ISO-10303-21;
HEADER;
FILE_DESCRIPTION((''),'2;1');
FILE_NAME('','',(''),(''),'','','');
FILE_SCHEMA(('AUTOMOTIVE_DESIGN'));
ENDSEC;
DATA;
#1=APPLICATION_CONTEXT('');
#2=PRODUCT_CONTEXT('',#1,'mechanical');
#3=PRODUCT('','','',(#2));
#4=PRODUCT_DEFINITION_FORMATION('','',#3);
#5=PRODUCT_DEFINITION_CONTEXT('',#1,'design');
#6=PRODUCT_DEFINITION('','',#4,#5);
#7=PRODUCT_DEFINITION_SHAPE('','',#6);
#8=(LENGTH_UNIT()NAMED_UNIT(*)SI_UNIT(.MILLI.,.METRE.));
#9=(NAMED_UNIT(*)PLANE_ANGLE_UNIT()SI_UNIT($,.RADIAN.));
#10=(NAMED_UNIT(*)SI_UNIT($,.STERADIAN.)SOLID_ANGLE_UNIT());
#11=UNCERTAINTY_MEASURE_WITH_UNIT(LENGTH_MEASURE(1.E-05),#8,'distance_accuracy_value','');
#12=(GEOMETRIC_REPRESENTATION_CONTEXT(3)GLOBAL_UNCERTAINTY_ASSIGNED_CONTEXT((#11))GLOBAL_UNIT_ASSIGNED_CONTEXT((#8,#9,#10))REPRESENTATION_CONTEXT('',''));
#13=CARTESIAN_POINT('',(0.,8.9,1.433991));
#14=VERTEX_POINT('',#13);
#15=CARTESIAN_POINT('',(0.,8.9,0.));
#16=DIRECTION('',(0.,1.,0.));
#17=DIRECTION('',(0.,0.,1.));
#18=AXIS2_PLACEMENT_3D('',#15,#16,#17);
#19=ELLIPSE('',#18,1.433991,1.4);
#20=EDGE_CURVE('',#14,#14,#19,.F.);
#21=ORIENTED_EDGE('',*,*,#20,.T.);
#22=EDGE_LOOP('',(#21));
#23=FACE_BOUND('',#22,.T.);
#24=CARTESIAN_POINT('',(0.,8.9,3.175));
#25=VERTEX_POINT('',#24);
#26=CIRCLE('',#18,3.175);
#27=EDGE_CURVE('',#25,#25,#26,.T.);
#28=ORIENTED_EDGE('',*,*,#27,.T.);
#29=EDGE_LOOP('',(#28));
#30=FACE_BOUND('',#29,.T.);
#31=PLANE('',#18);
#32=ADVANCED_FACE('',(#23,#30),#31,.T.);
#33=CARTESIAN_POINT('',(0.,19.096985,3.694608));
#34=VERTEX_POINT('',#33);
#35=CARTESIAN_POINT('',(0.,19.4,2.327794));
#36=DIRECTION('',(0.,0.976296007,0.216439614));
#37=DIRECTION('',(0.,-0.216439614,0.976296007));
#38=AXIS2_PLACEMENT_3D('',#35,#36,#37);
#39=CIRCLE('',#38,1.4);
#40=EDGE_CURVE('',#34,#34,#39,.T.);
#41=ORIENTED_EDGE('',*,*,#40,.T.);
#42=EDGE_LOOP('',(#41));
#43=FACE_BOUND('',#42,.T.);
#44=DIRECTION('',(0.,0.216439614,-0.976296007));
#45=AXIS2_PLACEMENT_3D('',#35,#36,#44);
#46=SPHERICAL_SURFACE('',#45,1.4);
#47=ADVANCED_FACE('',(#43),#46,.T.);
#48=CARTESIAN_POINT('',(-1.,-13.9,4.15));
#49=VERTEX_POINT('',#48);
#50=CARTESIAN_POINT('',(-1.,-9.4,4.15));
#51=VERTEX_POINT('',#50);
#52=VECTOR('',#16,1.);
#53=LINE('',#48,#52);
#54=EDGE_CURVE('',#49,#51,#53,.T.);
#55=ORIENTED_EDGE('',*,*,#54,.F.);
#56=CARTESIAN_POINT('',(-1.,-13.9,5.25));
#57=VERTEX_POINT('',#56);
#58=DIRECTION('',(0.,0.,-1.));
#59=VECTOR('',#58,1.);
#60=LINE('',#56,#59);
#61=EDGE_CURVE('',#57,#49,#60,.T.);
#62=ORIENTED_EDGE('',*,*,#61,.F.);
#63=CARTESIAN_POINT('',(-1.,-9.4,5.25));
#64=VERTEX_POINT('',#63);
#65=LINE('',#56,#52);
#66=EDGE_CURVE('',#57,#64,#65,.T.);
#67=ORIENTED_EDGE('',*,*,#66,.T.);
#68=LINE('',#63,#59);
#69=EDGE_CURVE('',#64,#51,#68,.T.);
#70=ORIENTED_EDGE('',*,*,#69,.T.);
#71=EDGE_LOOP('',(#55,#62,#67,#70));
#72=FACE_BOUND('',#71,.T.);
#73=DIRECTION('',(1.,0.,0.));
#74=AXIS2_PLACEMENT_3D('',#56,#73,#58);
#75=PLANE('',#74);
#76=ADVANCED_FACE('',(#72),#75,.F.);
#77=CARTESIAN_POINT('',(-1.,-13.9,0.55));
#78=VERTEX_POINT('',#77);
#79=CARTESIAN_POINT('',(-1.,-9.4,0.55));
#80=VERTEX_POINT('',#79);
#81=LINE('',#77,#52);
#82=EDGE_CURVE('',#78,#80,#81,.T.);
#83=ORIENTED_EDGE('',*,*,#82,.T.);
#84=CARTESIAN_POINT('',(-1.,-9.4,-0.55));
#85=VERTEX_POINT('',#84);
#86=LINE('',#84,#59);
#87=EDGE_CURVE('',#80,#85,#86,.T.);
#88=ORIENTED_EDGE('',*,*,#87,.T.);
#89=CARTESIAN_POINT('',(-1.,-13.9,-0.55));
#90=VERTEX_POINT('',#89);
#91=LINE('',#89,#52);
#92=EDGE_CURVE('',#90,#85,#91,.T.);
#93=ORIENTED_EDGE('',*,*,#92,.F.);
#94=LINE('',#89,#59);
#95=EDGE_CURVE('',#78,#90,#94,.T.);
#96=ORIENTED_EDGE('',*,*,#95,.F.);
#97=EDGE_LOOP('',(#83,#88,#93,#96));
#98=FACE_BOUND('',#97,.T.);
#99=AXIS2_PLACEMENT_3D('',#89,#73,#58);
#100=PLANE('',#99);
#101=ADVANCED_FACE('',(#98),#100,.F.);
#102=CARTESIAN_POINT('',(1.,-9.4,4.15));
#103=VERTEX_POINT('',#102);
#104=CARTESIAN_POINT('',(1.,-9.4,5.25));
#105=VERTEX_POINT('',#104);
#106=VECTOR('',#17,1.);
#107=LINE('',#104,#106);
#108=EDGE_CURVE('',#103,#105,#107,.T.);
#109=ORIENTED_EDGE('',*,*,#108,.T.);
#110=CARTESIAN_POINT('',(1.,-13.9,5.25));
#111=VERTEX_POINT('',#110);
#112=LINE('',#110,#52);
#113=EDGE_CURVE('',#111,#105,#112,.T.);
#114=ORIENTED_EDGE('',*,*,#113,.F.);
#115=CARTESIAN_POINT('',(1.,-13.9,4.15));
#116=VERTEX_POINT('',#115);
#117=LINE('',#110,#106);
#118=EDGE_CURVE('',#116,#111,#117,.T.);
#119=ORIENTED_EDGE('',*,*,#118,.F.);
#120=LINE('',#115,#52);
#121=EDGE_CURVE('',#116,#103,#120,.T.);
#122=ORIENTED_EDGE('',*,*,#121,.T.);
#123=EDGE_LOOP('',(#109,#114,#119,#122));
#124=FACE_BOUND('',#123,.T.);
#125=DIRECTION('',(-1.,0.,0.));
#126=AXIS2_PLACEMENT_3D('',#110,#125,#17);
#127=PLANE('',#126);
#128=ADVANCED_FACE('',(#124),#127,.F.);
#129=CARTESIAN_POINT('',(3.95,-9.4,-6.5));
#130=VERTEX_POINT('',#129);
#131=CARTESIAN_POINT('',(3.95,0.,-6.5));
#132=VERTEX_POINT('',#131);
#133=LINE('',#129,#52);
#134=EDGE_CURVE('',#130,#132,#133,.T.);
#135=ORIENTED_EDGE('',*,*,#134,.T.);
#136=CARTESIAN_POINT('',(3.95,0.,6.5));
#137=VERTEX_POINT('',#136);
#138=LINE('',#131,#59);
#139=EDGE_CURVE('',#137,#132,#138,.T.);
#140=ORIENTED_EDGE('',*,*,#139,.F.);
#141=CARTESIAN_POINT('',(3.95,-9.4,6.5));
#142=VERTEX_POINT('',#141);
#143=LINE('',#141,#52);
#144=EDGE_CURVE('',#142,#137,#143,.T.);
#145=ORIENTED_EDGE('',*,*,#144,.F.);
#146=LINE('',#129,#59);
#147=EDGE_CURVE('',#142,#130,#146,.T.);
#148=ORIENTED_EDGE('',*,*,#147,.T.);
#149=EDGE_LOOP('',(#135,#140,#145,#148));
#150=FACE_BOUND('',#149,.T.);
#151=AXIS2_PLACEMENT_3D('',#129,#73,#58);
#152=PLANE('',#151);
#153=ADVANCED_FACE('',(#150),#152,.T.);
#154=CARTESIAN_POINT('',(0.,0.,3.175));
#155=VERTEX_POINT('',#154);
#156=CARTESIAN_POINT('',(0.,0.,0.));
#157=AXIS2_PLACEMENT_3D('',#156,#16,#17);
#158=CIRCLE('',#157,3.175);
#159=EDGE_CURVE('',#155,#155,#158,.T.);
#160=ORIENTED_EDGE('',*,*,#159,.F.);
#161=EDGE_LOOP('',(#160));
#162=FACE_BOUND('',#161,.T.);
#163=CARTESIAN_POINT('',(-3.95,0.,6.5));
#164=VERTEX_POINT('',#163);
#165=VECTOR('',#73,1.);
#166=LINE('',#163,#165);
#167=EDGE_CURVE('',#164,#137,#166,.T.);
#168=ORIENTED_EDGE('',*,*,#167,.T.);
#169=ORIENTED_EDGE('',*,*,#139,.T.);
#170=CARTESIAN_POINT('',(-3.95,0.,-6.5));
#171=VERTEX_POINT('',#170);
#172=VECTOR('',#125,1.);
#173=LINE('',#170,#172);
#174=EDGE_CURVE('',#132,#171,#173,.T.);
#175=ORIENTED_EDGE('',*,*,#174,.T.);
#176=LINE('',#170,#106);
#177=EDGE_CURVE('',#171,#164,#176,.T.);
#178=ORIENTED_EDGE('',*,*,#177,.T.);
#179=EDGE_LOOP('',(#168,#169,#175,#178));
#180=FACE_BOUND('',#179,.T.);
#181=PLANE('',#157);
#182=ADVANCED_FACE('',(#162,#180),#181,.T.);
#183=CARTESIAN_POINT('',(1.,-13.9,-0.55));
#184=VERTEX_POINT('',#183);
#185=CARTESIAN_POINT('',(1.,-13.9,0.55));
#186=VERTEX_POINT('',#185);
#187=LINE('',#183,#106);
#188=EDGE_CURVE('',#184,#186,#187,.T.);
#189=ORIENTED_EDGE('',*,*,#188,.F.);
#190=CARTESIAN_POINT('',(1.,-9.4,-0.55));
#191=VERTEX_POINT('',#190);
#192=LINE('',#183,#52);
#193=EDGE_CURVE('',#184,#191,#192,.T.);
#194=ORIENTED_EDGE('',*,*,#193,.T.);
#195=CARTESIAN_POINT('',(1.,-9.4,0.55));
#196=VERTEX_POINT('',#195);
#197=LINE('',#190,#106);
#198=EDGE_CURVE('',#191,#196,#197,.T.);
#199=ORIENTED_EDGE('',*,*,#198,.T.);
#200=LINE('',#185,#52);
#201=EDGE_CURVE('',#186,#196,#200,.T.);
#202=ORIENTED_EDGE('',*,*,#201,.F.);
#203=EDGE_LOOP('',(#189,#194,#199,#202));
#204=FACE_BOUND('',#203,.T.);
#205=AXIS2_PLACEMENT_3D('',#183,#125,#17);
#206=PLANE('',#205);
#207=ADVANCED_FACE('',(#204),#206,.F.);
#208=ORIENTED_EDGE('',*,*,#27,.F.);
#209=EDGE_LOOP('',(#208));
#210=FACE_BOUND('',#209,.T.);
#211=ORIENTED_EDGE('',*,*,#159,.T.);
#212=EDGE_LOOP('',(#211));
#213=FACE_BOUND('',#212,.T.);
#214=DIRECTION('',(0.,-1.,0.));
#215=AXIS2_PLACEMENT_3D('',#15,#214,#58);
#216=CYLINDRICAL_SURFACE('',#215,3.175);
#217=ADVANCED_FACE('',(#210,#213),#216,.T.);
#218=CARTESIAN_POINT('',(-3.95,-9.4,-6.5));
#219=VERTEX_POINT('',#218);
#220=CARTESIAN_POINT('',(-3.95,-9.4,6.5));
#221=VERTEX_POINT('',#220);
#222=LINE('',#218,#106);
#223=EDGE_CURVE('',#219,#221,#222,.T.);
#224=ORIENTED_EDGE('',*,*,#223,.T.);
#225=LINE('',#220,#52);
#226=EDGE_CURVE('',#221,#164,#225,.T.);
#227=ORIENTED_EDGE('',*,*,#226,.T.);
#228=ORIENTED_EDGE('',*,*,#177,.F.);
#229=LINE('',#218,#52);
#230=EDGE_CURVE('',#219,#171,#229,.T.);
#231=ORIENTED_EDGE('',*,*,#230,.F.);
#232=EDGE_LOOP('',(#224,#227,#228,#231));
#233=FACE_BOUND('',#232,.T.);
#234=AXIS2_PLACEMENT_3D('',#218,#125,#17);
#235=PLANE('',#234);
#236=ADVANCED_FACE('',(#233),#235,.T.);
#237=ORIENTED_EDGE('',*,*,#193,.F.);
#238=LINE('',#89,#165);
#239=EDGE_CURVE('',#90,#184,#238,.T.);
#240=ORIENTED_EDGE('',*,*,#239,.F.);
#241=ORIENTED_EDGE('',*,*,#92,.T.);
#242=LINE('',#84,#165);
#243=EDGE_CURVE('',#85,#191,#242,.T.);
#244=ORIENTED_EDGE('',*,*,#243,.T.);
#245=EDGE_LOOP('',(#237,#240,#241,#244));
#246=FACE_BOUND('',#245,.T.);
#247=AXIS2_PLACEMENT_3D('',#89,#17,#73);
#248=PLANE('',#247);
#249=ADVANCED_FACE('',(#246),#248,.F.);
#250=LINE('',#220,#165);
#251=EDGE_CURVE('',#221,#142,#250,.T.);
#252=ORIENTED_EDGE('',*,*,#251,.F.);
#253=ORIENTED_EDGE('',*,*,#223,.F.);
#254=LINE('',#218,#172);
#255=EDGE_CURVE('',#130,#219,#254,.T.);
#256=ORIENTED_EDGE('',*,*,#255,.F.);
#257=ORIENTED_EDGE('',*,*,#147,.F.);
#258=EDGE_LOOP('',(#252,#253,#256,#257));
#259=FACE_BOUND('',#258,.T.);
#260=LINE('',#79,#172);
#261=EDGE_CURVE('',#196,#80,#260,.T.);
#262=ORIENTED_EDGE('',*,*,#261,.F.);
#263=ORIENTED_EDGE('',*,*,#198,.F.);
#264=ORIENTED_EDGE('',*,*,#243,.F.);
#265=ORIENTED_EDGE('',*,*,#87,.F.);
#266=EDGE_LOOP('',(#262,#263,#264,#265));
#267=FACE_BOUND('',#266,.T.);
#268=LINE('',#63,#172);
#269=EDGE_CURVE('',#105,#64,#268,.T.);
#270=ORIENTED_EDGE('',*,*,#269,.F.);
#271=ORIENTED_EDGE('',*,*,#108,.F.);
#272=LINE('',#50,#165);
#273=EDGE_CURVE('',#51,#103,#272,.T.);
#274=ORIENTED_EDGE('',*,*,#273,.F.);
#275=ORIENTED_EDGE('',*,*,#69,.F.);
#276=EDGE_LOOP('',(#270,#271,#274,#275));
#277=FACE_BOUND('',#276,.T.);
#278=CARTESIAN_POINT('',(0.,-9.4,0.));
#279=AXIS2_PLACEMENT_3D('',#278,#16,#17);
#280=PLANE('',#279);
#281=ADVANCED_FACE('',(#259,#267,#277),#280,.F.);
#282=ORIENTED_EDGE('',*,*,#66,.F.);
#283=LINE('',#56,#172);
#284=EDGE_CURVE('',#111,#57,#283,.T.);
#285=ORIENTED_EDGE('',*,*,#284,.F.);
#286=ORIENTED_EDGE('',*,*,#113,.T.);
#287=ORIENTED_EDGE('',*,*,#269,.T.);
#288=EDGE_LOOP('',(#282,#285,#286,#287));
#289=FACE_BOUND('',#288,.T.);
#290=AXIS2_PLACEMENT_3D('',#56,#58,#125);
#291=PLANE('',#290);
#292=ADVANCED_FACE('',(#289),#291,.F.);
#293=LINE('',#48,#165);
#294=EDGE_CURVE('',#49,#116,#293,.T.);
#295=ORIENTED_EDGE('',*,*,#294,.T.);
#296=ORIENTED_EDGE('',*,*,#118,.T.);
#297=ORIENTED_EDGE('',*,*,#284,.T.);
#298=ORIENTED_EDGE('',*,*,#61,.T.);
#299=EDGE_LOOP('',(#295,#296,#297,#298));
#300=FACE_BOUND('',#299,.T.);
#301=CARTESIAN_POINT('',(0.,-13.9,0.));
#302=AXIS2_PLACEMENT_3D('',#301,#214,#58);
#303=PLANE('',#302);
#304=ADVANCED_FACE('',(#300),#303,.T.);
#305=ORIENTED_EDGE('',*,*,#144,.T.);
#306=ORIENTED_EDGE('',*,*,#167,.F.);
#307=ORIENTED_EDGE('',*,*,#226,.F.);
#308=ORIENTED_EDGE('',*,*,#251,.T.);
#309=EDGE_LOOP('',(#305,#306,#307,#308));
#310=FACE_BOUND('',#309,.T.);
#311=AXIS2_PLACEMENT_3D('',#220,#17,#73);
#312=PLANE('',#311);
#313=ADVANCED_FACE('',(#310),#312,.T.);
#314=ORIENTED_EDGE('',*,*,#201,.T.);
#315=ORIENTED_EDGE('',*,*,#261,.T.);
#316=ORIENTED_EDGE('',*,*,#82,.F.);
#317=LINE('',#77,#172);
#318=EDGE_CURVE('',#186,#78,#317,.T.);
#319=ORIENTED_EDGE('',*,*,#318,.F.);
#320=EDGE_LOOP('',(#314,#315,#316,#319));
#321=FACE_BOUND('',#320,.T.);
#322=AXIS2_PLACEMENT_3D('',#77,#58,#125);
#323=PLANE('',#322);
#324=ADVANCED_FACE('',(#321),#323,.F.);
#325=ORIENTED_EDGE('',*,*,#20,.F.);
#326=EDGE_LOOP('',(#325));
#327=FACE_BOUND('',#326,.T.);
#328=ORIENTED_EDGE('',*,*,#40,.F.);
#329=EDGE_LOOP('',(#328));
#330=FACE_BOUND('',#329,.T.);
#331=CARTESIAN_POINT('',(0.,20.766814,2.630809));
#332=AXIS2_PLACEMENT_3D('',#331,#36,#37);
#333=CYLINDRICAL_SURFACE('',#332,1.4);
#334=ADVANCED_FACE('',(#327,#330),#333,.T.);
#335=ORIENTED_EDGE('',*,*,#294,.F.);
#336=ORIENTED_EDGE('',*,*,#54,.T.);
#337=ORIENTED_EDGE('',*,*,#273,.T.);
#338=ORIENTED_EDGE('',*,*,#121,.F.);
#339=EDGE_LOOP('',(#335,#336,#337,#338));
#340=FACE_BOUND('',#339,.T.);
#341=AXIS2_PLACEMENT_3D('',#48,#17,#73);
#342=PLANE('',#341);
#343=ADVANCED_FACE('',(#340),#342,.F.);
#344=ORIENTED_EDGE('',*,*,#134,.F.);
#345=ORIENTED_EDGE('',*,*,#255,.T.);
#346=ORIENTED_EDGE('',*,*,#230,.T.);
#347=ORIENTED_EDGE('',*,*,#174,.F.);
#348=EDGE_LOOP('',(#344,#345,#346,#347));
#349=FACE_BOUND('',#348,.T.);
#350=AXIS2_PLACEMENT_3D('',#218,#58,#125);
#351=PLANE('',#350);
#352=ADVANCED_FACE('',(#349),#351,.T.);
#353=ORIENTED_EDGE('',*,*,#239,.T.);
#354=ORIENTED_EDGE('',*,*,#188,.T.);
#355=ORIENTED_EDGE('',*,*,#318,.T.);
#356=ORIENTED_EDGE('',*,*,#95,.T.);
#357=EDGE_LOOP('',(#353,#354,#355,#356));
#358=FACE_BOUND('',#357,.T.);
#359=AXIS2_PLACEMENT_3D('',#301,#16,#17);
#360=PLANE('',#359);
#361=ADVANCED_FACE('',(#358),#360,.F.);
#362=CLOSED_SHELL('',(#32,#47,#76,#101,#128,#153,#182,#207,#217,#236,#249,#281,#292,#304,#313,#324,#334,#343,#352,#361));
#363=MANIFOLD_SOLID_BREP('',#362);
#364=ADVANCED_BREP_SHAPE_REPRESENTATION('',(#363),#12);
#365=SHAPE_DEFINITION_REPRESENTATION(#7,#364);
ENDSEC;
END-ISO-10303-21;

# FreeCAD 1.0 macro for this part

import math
import FreeCAD as App
import Part
import Sketcher

V = App.Vector
Q = App.Units.Quantity


def add_polygon(sketch, points):
    """Adds a closed chain of lines whose ends are joined by coincident constraints."""
    first, n = sketch.GeometryCount, len(points)
    for a, b in zip(points, points[1:] + points[:1]):
        sketch.addGeometry(Part.LineSegment(App.Vector(*a, 0), App.Vector(*b, 0)), False)
    for i in range(n):
        sketch.addConstraint(Sketcher.Constraint("Coincident", first + i, 2, first + (i + 1) % n, 1))

doc = App.newDocument("Part")
body = doc.addObject("PartDesign::Body", "Body")

# Sketch on XZ plane
sketch1 = body.newObject("Sketcher::SketchObject", "Sketch")
sketch1.AttachmentSupport = (doc.getObject("XZ_Plane"), [""])
sketch1.MapMode = "FlatFace"
add_polygon(sketch1, [(-4, -6), (-4, 6), (4, 6), (4, -6)])  # lines 0-3
sketch1.addConstraint([
    Sketcher.Constraint("Vertical", 0),
    Sketcher.Constraint("Horizontal", 1),
    Sketcher.Constraint("Vertical", 2),
    Sketcher.Constraint("Horizontal", 3),
    Sketcher.Constraint("Symmetric", 0, 2, 2, 2, -1, 1),
    Sketcher.Constraint("DistanceY", 0, 1, 0, 2, Q("13 mm")),
    Sketcher.Constraint("DistanceX", 1, 1, 1, 2, Q("7.9 mm")),
])
pad1 = body.newObject("PartDesign::Pad", "Pad")
pad1.Profile = sketch1
pad1.Length = 9.4

# Sketch on XZ plane
sketch2 = body.newObject("Sketcher::SketchObject", "Sketch001")
sketch2.AttachmentSupport = (doc.getObject("XZ_Plane"), [""])
sketch2.MapMode = "FlatFace"
sketch2.AttachmentOffset = App.Placement(V(0, 0, 9.4), App.Rotation())
add_polygon(sketch2, [(-1, 5.2), (-1, 4.2), (1, 4.2), (1, 5.2)])  # lines 0-3
add_polygon(sketch2, [(-1, 0.6), (-1, -0.6), (1, -0.6), (1, 0.6)])  # lines 4-7
sketch2.addConstraint([
    Sketcher.Constraint("Vertical", 0),
    Sketcher.Constraint("Horizontal", 1),
    Sketcher.Constraint("Vertical", 2),
    Sketcher.Constraint("Horizontal", 3),
    Sketcher.Constraint("Vertical", 4),
    Sketcher.Constraint("Horizontal", 5),
    Sketcher.Constraint("Vertical", 6),
    Sketcher.Constraint("Horizontal", 7),
    Sketcher.Constraint("Symmetric", 4, 2, 6, 2, -1, 1),
    Sketcher.Constraint("Vertical", 3, 2, 4, 2),
    Sketcher.Constraint("Vertical", 2, 2, 5, 2),
    Sketcher.Constraint("Equal", 2, 4),
    Sketcher.Constraint("DistanceX", 1, 1, 1, 2, Q("2 mm")),
    Sketcher.Constraint("DistanceY", 0, 2, 0, 1, Q("1.1 mm")),
    Sketcher.Constraint("DistanceY", 4, 2, 0, 2, Q("4.7 mm")),
])
pad2 = body.newObject("PartDesign::Pad", "Pad001")
pad2.Profile = sketch2
pad2.Length = 4.5

# Sketch on XZ plane
sketch3 = body.newObject("Sketcher::SketchObject", "Sketch002")
sketch3.AttachmentSupport = (doc.getObject("XZ_Plane"), [""])
sketch3.MapMode = "FlatFace"
sketch3.addGeometry(Part.Circle(V(0, 0, 0), V(0, 0, 1), 3.2), False)
sketch3.addConstraint([
    Sketcher.Constraint("Coincident", 0, 3, -1, 1),
    Sketcher.Constraint("Diameter", 0, Q("6.35 mm")),
])
pad3 = body.newObject("PartDesign::Pad", "Pad002")
pad3.Profile = sketch3
pad3.Length = 8.9
pad3.Reversed = True

# Sketch on YZ plane
sketch4 = body.newObject("Sketcher::SketchObject", "Sketch003")
sketch4.AttachmentSupport = (doc.getObject("YZ_Plane"), [""])
sketch4.MapMode = "FlatFace"
sketch4.addGeometry([
    Part.LineSegment(V(8.9, 0, 0), V(8.9, -1.4, 0)),
    Part.LineSegment(V(8.9, -1.4, 0), V(19.7, 1, 0)),
    Part.ArcOfCircle(Part.Circle(V(19.4, 2.3, 0), V(0, 0, 1), 1.4), math.radians(-77), math.radians(12)),
    Part.LineSegment(V(20.8, 2.6, 0), V(8.9, 0, 0)),
], False)
sketch4.addGeometry(Part.LineSegment(V(20.8, 2.6, 0), V(8.6, -0.1, 0)), True)  # axis
sketch4.addConstraint([
    Sketcher.Constraint("Coincident", 0, 2, 1, 1),
    Sketcher.Constraint("Tangent", 1, 2, 2, 1),
    Sketcher.Constraint("Coincident", 2, 2, 3, 1),
    Sketcher.Constraint("Coincident", 3, 2, 0, 1),
    Sketcher.Constraint("Vertical", 0),
    Sketcher.Constraint("Coincident", 4, 1, 2, 2),
    Sketcher.Constraint("PointOnObject", 3, 2, -1),
    Sketcher.Constraint("Parallel", 1, 3),
    Sketcher.Constraint("Parallel", 3, 4),
    Sketcher.Constraint("Radius", 2, Q("1.4 mm")),
    Sketcher.Constraint("Angle", 1, Q("12.5 deg")),
    Sketcher.Constraint("DistanceX", -1, 1, 2, 3, Q("19.4 mm")),
    Sketcher.Constraint("DistanceX", -1, 1, 0, 2, Q("8.9 mm")),
    Sketcher.Constraint("DistanceY", 0, 2, 0, 1, Q("1.433991 mm")),
    Sketcher.Constraint("DistanceY", 4, 2, 2, 3, Q("2.394971 mm")),
])
revolution = body.newObject("PartDesign::Revolution", "Revolution")
revolution.Profile = sketch4
revolution.ReferenceAxis = (sketch4, ["Axis0"])
revolution.Angle = 360

doc.recompute()
